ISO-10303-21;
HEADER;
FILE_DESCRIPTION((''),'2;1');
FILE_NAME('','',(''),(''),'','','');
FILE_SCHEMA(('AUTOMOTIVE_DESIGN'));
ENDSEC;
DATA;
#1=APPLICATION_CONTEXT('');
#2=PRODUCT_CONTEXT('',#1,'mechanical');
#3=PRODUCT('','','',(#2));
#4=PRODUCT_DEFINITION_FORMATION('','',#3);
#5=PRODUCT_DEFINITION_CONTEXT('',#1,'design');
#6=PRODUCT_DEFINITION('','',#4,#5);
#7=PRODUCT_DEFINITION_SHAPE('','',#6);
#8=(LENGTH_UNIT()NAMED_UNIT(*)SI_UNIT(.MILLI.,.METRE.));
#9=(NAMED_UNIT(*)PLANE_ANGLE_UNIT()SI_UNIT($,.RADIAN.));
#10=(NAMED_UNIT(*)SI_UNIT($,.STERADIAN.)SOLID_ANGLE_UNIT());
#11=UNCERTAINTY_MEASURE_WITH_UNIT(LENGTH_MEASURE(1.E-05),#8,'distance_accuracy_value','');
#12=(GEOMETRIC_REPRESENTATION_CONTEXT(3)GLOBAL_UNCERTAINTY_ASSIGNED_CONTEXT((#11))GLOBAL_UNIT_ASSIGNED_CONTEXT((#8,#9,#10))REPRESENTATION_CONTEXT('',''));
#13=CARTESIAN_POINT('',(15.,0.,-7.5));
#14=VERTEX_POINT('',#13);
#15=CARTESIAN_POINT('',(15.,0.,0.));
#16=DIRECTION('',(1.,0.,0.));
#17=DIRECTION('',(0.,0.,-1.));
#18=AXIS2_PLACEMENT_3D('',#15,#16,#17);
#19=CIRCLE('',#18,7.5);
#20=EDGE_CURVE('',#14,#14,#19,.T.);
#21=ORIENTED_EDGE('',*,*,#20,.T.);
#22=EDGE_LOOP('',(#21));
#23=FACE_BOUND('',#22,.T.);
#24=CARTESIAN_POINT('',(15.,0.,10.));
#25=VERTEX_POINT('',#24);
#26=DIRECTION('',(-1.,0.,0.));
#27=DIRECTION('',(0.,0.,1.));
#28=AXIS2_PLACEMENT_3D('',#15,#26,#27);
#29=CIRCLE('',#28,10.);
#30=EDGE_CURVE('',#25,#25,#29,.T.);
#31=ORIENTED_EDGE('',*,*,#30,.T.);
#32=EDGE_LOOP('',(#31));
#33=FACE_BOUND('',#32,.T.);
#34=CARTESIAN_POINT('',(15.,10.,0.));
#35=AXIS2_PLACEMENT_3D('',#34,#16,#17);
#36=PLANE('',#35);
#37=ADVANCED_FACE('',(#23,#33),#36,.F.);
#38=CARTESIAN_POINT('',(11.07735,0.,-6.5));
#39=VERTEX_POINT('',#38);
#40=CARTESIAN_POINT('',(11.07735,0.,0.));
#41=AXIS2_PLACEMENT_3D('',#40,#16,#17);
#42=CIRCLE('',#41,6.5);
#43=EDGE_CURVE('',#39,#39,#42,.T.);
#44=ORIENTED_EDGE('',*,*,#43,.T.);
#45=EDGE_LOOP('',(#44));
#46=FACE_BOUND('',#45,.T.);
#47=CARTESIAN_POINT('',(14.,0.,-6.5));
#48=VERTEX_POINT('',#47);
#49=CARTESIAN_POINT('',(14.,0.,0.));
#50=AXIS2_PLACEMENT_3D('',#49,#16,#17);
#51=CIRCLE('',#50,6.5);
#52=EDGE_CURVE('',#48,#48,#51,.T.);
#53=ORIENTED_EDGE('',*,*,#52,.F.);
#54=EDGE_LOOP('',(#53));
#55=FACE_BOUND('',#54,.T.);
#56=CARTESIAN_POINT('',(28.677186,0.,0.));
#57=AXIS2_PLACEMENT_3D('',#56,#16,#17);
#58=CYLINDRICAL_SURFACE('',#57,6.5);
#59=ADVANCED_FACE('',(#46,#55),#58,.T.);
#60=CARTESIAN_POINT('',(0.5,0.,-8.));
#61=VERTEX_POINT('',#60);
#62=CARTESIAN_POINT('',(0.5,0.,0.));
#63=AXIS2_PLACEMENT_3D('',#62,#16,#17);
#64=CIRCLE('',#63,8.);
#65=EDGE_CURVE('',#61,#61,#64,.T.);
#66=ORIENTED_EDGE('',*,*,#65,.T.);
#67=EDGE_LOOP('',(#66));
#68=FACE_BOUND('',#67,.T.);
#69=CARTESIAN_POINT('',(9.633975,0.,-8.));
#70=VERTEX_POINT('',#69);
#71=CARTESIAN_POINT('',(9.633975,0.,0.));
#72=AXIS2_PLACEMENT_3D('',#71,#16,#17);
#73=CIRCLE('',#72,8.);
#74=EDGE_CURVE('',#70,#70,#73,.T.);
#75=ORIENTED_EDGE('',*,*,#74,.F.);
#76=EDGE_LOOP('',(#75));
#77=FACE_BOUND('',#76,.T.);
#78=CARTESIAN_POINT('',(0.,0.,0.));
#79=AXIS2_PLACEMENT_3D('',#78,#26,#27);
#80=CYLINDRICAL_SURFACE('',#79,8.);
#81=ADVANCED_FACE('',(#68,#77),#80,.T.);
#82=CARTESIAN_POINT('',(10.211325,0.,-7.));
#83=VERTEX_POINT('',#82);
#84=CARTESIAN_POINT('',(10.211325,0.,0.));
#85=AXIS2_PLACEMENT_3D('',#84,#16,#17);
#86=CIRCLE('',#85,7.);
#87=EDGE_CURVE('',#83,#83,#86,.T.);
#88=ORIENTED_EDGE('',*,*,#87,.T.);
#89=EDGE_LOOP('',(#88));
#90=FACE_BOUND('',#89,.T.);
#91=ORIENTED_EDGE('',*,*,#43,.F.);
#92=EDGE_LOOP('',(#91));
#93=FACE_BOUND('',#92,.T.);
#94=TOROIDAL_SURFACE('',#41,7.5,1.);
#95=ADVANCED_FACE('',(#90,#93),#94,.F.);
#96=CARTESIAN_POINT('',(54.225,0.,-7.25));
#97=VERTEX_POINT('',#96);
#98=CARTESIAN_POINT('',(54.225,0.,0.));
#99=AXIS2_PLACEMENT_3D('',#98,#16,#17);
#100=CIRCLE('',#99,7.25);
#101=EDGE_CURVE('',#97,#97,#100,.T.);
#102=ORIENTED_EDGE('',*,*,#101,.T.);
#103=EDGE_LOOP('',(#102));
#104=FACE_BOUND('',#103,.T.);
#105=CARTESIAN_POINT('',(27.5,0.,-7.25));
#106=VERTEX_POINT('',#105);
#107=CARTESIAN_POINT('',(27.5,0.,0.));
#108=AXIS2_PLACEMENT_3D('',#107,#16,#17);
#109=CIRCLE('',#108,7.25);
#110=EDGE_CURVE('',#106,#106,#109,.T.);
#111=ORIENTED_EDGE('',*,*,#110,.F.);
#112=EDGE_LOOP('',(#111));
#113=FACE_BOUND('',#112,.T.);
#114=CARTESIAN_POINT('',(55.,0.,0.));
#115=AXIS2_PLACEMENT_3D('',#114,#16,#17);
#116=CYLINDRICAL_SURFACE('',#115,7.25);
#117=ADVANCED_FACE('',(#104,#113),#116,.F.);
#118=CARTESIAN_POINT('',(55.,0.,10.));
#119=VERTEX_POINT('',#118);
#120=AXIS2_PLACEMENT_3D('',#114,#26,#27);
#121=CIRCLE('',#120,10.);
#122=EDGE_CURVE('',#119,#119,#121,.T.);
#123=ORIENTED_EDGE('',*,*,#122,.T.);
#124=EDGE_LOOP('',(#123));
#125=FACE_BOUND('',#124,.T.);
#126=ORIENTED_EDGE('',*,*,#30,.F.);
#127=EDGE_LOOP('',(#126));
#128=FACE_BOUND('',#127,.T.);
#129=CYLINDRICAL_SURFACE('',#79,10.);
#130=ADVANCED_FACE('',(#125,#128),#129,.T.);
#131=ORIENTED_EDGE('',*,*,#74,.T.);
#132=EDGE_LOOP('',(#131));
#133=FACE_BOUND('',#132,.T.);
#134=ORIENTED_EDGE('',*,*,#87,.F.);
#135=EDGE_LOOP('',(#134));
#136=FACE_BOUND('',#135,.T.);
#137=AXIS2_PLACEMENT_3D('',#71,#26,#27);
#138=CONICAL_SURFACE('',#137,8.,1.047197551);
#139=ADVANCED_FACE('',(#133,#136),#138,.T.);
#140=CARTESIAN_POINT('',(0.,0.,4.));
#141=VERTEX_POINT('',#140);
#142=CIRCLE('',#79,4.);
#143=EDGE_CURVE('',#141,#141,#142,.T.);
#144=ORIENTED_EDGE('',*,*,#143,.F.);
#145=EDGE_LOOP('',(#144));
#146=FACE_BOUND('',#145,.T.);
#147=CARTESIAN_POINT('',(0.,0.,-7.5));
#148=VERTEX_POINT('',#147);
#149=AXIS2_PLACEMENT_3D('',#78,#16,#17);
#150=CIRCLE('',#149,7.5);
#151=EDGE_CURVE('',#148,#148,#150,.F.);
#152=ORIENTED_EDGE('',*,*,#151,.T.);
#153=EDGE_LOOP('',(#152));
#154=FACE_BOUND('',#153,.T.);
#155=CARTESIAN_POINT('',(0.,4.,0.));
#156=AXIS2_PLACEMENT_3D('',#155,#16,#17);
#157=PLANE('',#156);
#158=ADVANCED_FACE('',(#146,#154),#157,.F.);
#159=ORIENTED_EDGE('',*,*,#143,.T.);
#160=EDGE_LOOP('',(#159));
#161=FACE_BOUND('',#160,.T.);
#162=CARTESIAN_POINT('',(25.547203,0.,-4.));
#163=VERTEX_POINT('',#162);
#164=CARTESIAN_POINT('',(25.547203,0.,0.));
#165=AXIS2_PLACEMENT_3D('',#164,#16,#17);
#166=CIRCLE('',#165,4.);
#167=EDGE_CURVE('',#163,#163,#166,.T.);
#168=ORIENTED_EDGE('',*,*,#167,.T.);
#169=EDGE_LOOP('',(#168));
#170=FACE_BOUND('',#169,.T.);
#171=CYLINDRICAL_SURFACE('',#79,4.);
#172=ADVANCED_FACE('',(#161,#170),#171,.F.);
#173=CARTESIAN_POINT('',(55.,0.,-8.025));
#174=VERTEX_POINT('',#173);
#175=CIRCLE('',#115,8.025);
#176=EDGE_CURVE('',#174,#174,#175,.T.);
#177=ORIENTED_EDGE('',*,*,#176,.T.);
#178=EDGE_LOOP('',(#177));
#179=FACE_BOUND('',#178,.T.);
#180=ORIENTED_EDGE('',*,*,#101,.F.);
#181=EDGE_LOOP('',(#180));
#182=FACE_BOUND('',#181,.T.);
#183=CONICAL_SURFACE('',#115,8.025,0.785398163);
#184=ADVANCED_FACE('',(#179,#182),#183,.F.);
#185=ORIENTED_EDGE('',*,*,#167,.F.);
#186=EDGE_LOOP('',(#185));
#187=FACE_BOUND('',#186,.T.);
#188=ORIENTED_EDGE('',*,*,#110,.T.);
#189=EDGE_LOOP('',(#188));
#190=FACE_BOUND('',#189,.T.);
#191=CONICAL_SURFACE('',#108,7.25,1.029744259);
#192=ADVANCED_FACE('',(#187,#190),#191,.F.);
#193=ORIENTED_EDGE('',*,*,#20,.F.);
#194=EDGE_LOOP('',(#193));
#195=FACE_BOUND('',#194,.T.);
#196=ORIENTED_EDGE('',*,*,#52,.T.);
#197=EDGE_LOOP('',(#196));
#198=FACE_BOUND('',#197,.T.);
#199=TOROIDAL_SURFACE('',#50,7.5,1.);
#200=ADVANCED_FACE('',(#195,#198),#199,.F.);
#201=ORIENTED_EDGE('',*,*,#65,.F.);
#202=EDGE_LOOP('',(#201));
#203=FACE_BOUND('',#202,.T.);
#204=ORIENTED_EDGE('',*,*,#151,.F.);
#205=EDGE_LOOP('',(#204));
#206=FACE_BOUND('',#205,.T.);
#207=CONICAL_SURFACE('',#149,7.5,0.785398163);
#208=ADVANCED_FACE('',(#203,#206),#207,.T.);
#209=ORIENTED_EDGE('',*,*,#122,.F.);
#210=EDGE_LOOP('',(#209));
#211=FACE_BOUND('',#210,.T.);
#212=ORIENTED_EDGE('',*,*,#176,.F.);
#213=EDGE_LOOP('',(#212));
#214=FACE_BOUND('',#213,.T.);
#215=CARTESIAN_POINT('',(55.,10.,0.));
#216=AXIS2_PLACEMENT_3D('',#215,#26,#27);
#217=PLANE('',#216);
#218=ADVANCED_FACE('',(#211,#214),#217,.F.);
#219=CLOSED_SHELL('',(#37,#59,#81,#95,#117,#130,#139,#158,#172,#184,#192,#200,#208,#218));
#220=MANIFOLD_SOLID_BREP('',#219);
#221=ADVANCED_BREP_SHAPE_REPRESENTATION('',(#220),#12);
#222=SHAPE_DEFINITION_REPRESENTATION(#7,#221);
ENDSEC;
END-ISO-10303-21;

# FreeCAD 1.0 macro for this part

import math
import FreeCAD as App
import Part
import Sketcher
Q = App.Units.Quantity


def edges_at(feature, points):
    """Names of the edges that pass closest to the given points."""
    edges = feature.Shape.Edges
    near = lambda p: min(range(len(edges)), key=lambda i: edges[i].distToShape(Part.Vertex(*p))[0])
    return sorted({f"Edge{near(p) + 1}" for p in points})

doc = App.newDocument("Part")
body = doc.addObject("PartDesign::Body", "Body")

sketch1 = body.newObject("Sketcher::SketchObject", "Sketch")
sketch1.AttachmentSupport = (doc.getObject("XY_Plane"), [""])
sketch1.MapMode = "FlatFace"
sketch1.addGeometry([
    Part.LineSegment(App.Vector(0, 4, 0), App.Vector(55, 4, 0)),
    Part.LineSegment(App.Vector(55, 4, 0), App.Vector(55, 10, 0)),
    Part.LineSegment(App.Vector(55, 10, 0), App.Vector(15, 10, 0)),
    Part.LineSegment(App.Vector(15, 10, 0), App.Vector(15, 8, 0)),
    Part.LineSegment(App.Vector(15, 8, 0), App.Vector(0, 8, 0)),
    Part.LineSegment(App.Vector(0, 8, 0), App.Vector(0, 4, 0)),
], False)
sketch1.addConstraint([
    Sketcher.Constraint("Coincident", 0, 2, 1, 1),
    Sketcher.Constraint("Coincident", 1, 2, 2, 1),
    Sketcher.Constraint("Coincident", 2, 2, 3, 1),
    Sketcher.Constraint("Coincident", 3, 2, 4, 1),
    Sketcher.Constraint("Coincident", 4, 2, 5, 1),
    Sketcher.Constraint("Coincident", 5, 2, 0, 1),
    Sketcher.Constraint("Horizontal", 0),
    Sketcher.Constraint("Vertical", 1),
    Sketcher.Constraint("Horizontal", 2),
    Sketcher.Constraint("Vertical", 3),
    Sketcher.Constraint("Horizontal", 4),
    Sketcher.Constraint("Vertical", 5),
    Sketcher.Constraint("PointOnObject", 4, 2, -2),
    Sketcher.Constraint("DistanceX", 0, 1, 0, 2, Q("55 mm")),
    Sketcher.Constraint("DistanceX", 2, 2, 2, 1, Q("40 mm")),
    Sketcher.Constraint("DistanceY", 1, 1, 1, 2, Q("6 mm")),
    Sketcher.Constraint("DistanceY", 3, 2, 3, 1, Q("2 mm")),
    Sketcher.Constraint("DistanceY", -1, 1, 0, 2, Q("4 mm")),
])
revolution = body.newObject("PartDesign::Revolution", "Revolution")
revolution.Profile = sketch1
revolution.ReferenceAxis = (sketch1, ["H_Axis"])
revolution.Angle = 360

sketch2 = body.newObject("Sketcher::SketchObject", "Sketch001")
sketch2.AttachmentSupport = (doc.getObject("YZ_Plane"), [""])
sketch2.MapMode = "FlatFace"
sketch2.AttachmentOffset = App.Placement(App.Vector(0, 0, 55), App.Rotation())
sketch2.addGeometry(Part.Circle(App.Vector(0, 0, 0), App.Vector(0, 0, 1), 7.25), False)
sketch2.addConstraint([
    Sketcher.Constraint("Coincident", 0, 3, -1, 1),
    Sketcher.Constraint("Diameter", 0, Q("14.5 mm")),
])
doc.recompute()
hole = body.newObject("PartDesign::Hole", "Hole")
hole.Profile = sketch2
hole.ThreadType = "None"
hole.Diameter = 14.5
hole.DepthType = "Dimension"
hole.Depth = 27.5
hole.DrillPoint = "Angled"
hole.DrillPointAngle = 118
hole.HoleCutType = "Countersink"
hole.HoleCutDiameter = 16.05
hole.HoleCutCountersinkAngle = 90
doc.recompute()

chamfer = body.newObject("PartDesign::Chamfer", "Chamfer")
chamfer.Base = (hole, edges_at(hole, [(0, 0, -8)]))
chamfer.Size = 0.5

sketch3 = body.newObject("Sketcher::SketchObject", "Sketch002")
sketch3.AttachmentSupport = (doc.getObject("XY_Plane"), [""])
sketch3.MapMode = "FlatFace"
sketch3.addGeometry([
    Part.LineSegment(App.Vector(9.633975, 8, 0), App.Vector(10.211325, 7, 0)),
    Part.ArcOfCircle(Part.Circle(App.Vector(11.07735, 7.5, 0), App.Vector(0, 0, 1), 1), math.radians(-150), math.radians(-90)),
    Part.LineSegment(App.Vector(11.07735, 6.5, 0), App.Vector(14, 6.5, 0)),
    Part.ArcOfCircle(Part.Circle(App.Vector(14, 7.5, 0), App.Vector(0, 0, 1), 1), math.radians(-90), math.radians(0)),
    Part.LineSegment(App.Vector(15, 7.5, 0), App.Vector(15, 8, 0)),
    Part.LineSegment(App.Vector(15, 8, 0), App.Vector(9.633975, 8, 0)),
], False)
sketch3.addConstraint([
    Sketcher.Constraint("Tangent", 0, 2, 1, 1),
    Sketcher.Constraint("Tangent", 1, 2, 2, 1),
    Sketcher.Constraint("Tangent", 2, 2, 3, 1),
    Sketcher.Constraint("Tangent", 3, 2, 4, 1),
    Sketcher.Constraint("Coincident", 4, 2, 5, 1),
    Sketcher.Constraint("Coincident", 5, 2, 0, 1),
    Sketcher.Constraint("Horizontal", 2),
    Sketcher.Constraint("Vertical", 4),
    Sketcher.Constraint("Horizontal", 5),
    Sketcher.Constraint("Equal", 1, 3),
    Sketcher.Constraint("Radius", 1, Q("1 mm")),
    Sketcher.Constraint("Angle", 0, Q("-60 deg")),
    Sketcher.Constraint("DistanceY", 4, 1, 4, 2, Q("0.5 mm")),
    Sketcher.Constraint("DistanceX", -1, 1, 3, 3, Q("14 mm")),
    Sketcher.Constraint("DistanceY", -1, 1, 0, 2, Q("7 mm")),
    Sketcher.Constraint("DistanceX", 2, 1, 2, 2, Q("2.92265 mm")),
])
groove = body.newObject("PartDesign::Groove", "Groove")
groove.Profile = sketch3
groove.ReferenceAxis = (sketch3, ["H_Axis"])
groove.Angle = 360

doc.recompute()
